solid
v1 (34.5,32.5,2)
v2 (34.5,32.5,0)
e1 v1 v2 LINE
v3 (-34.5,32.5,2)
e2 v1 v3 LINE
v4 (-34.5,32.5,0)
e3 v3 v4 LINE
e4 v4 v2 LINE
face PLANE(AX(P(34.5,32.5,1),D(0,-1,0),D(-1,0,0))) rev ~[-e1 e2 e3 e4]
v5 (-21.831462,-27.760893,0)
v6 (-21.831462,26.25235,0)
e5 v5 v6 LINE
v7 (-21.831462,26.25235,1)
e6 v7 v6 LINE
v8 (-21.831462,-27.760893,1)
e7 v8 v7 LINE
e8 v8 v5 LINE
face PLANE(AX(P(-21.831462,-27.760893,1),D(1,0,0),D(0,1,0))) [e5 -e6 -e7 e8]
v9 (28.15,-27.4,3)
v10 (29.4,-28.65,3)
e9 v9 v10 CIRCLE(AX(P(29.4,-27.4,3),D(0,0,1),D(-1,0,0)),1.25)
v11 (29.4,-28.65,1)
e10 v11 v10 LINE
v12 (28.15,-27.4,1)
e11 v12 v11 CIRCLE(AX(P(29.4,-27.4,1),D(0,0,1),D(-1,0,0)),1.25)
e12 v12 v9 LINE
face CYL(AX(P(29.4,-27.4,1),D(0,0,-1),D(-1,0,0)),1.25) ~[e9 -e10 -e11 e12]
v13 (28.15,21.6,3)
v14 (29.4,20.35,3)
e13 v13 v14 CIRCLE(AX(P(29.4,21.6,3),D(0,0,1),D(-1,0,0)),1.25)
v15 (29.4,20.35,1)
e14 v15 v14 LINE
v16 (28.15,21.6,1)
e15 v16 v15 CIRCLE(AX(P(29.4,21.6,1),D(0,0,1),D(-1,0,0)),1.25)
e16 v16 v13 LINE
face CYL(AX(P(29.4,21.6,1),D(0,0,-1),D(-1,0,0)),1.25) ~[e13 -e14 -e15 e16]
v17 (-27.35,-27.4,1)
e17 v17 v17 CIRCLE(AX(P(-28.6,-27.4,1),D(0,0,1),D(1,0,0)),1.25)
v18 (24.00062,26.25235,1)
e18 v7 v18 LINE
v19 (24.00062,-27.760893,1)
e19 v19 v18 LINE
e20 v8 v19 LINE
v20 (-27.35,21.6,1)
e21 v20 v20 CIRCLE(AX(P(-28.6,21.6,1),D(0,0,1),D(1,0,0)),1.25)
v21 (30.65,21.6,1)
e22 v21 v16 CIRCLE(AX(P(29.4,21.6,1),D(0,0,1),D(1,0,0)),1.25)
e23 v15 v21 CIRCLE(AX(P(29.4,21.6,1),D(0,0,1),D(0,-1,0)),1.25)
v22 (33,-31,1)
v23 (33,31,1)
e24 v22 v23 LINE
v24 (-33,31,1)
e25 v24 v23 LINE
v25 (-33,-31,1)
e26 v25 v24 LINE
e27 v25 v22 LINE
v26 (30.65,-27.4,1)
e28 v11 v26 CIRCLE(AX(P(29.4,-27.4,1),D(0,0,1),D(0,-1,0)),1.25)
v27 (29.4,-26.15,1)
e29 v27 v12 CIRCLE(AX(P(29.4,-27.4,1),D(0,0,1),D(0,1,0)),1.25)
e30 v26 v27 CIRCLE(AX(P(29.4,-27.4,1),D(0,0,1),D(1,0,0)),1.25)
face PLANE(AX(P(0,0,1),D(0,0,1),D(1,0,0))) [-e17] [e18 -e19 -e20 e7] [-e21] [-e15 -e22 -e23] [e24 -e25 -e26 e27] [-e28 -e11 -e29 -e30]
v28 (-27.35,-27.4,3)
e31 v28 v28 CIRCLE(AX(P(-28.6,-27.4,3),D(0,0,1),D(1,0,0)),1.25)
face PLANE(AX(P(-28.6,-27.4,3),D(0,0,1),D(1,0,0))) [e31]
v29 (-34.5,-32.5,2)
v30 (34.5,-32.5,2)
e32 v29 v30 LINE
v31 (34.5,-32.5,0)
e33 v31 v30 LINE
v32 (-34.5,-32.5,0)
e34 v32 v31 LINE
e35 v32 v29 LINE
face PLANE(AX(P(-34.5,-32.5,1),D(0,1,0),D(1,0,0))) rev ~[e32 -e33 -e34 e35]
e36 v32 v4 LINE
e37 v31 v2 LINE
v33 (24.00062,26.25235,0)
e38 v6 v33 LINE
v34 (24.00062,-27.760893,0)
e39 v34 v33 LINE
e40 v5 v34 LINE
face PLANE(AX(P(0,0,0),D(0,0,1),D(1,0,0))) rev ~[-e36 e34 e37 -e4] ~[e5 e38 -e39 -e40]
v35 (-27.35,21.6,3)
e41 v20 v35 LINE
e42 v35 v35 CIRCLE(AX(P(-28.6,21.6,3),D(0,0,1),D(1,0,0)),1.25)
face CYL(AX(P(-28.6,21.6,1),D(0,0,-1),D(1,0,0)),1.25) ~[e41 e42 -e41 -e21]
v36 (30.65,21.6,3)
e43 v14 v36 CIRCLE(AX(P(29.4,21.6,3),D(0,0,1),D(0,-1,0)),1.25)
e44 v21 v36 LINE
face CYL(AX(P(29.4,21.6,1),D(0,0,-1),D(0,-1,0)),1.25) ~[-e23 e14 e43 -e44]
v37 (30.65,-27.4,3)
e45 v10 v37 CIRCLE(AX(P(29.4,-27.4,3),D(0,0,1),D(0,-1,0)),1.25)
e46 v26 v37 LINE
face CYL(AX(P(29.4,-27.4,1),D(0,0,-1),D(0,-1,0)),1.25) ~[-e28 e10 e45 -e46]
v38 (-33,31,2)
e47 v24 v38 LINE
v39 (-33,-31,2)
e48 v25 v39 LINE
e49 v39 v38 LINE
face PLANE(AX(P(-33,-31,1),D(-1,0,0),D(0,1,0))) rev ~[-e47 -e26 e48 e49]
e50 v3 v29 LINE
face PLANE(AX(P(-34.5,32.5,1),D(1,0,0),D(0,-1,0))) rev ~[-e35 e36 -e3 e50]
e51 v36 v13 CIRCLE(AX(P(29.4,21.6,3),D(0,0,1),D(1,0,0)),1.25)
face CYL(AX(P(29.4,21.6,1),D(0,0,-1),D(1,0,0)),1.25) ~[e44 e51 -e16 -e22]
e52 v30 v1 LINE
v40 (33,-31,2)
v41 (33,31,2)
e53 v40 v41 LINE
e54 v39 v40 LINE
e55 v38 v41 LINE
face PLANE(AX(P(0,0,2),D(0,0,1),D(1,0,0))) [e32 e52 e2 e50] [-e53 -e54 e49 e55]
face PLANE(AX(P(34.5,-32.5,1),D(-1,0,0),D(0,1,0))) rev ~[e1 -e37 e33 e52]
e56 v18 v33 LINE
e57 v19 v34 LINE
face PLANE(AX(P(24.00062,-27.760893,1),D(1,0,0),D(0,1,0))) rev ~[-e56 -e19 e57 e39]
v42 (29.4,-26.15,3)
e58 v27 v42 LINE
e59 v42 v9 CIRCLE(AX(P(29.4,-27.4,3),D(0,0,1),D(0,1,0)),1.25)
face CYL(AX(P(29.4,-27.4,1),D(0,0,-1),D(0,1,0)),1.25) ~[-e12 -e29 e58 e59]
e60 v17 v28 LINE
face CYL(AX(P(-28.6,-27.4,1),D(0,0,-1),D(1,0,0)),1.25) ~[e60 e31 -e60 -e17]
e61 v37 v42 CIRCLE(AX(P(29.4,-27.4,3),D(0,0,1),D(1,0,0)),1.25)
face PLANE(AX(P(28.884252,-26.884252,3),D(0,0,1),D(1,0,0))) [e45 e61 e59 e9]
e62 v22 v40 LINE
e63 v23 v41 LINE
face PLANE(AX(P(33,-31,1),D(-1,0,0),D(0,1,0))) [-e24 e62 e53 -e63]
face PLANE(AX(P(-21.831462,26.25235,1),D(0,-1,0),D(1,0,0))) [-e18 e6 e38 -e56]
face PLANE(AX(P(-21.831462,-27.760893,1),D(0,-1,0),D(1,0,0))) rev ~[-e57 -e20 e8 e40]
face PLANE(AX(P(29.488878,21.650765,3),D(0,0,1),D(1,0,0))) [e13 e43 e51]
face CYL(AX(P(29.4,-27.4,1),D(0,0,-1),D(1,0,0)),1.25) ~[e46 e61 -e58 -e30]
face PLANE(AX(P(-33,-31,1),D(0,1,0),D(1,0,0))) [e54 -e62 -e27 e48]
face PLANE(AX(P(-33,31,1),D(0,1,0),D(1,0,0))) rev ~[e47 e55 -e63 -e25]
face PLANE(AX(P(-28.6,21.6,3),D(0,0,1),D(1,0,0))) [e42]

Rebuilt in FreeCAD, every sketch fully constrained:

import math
import FreeCAD as App
import Part
import Sketcher

V = App.Vector


def add_polygon(sketch, points):
    """Adds a closed chain of lines whose ends are joined by coincident constraints."""
    first, n = sketch.GeometryCount, len(points)
    for a, b in zip(points, points[1:] + points[:1]):
        sketch.addGeometry(Part.LineSegment(App.Vector(*a, 0), App.Vector(*b, 0)), False)
    for i in range(n):
        sketch.addConstraint(Sketcher.Constraint("Coincident", first + i, 2, first + (i + 1) % n, 1))

doc = App.newDocument("Part")
params = doc.addObject("Spreadsheet::Sheet", "Params")
for row, (alias, value) in enumerate([
    ("sketch1_width", "69 mm"),
    ("sketch1_height", "65 mm"),
    ("pad1_length", "1 mm"),
    ("sketch2_width", "69 mm"),
    ("sketch2_width2", "66 mm"),
    ("sketch2_height", "65 mm"),
    ("sketch2_height2", "62 mm"),
    ("pad2_length", "1 mm"),
    ("sketch3_diameter", "2.5 mm"),
    ("pad3_length", "2 mm"),
    ("pocket1_length", "25 mm"),
], start=1):
    params.set(f"A{row}", alias)
    params.set(f"B{row}", "=" + value)
    params.setAlias(f"B{row}", alias)

body = doc.addObject("PartDesign::Body", "Body")

sketch1 = body.newObject("Sketcher::SketchObject", "Sketch")
sketch1.AttachmentSupport = (doc.getObject("XY_Plane"), [""])
sketch1.MapMode = "FlatFace"
add_polygon(sketch1, [(-34, 32), (-34, -32), (34, -32), (34, 32)])
sketch1.addConstraint(Sketcher.Constraint("Vertical", 0))
sketch1.addConstraint(Sketcher.Constraint("Horizontal", 1))
sketch1.addConstraint(Sketcher.Constraint("Vertical", 2))
sketch1.addConstraint(Sketcher.Constraint("Horizontal", 3))
sketch1.addConstraint(Sketcher.Constraint("Symmetric", 0, 2, 2, 2, -1, 1))
sketch1.addConstraint(Sketcher.Constraint("DistanceX", 1, 1, 1, 2, 69.0))
sketch1.addConstraint(Sketcher.Constraint("DistanceY", 0, 2, 0, 1, 65.0))
sketch1.setExpression("Constraints[9]", "Params.sketch1_width")
sketch1.setExpression("Constraints[10]", "Params.sketch1_height")
pad1 = body.newObject("PartDesign::Pad", "Pad")
pad1.Profile = sketch1
pad1.setExpression("Length", "Params.pad1_length")

sketch2 = body.newObject("Sketcher::SketchObject", "Sketch001")
sketch2.AttachmentSupport = (doc.getObject("XY_Plane"), [""])
sketch2.MapMode = "FlatFace"
sketch2.AttachmentOffset = App.Placement(V(0, 0, 1), App.Rotation())
add_polygon(sketch2, [(-34, 32), (-34, -32), (34, -32), (34, 32)])
add_polygon(sketch2, [(33, -31), (-33, -31), (-33, 31), (33, 31)])
sketch2.addConstraint(Sketcher.Constraint("Vertical", 0))
sketch2.addConstraint(Sketcher.Constraint("Horizontal", 1))
sketch2.addConstraint(Sketcher.Constraint("Vertical", 2))
sketch2.addConstraint(Sketcher.Constraint("Horizontal", 3))
sketch2.addConstraint(Sketcher.Constraint("Horizontal", 4))
sketch2.addConstraint(Sketcher.Constraint("Vertical", 5))
sketch2.addConstraint(Sketcher.Constraint("Horizontal", 6))
sketch2.addConstraint(Sketcher.Constraint("Vertical", 7))
sketch2.addConstraint(Sketcher.Constraint("Symmetric", 0, 2, 2, 2, -1, 1))
sketch2.addConstraint(Sketcher.Constraint("Symmetric", 4, 2, 6, 2, -1, 1))
sketch2.addConstraint(Sketcher.Constraint("DistanceX", 1, 1, 1, 2, 69.0))
sketch2.addConstraint(Sketcher.Constraint("DistanceX", 4, 2, 4, 1, 66.0))
sketch2.addConstraint(Sketcher.Constraint("DistanceY", 0, 2, 0, 1, 65.0))
sketch2.addConstraint(Sketcher.Constraint("DistanceY", 5, 1, 5, 2, 62.0))
sketch2.setExpression("Constraints[18]", "Params.sketch2_width")
sketch2.setExpression("Constraints[19]", "Params.sketch2_width2")
sketch2.setExpression("Constraints[20]", "Params.sketch2_height")
sketch2.setExpression("Constraints[21]", "Params.sketch2_height2")
pad2 = body.newObject("PartDesign::Pad", "Pad001")
pad2.Profile = sketch2
pad2.setExpression("Length", "Params.pad2_length")

sketch3 = body.newObject("Sketcher::SketchObject", "Sketch002")
sketch3.AttachmentSupport = (doc.getObject("XY_Plane"), [""])
sketch3.MapMode = "FlatFace"
sketch3.AttachmentOffset = App.Placement(V(0, 0, 1), App.Rotation())
sketch3.addGeometry(Part.Circle(V(-28.6, 21.6, 0), V(0, 0, 1), 1.2), False)
sketch3.addGeometry(Part.ArcOfCircle(Part.Circle(V(29.4, 21.6, 0), V(0, 0, 1), 1.2), math.radians(-90), math.radians(0)), False)
sketch3.addGeometry(Part.ArcOfCircle(Part.Circle(V(29.4, 21.6, 0), V(0, 0, 1), 1.2), math.radians(0), math.radians(180)), False)
sketch3.addGeometry(Part.ArcOfCircle(Part.Circle(V(29.4, 21.6, 0), V(0, 0, 1), 1.2), math.radians(180), math.radians(270)), False)
sketch3.addGeometry(Part.ArcOfCircle(Part.Circle(V(29.4, -27.4, 0), V(0, 0, 1), 1.2), math.radians(90), math.radians(180)), False)
sketch3.addGeometry(Part.ArcOfCircle(Part.Circle(V(29.4, -27.4, 0), V(0, 0, 1), 1.2), math.radians(180), math.radians(270)), False)
sketch3.addGeometry(Part.ArcOfCircle(Part.Circle(V(29.4, -27.4, 0), V(0, 0, 1), 1.2), math.radians(-90), math.radians(0)), False)
sketch3.addGeometry(Part.ArcOfCircle(Part.Circle(V(29.4, -27.4, 0), V(0, 0, 1), 1.2), math.radians(0), math.radians(90)), False)
sketch3.addGeometry(Part.Circle(V(-28.6, -27.4, 0), V(0, 0, 1), 1.2), False)
sketch3.addConstraint(Sketcher.Constraint("Tangent", 1, 2, 2, 1))
sketch3.addConstraint(Sketcher.Constraint("Tangent", 2, 2, 3, 1))
sketch3.addConstraint(Sketcher.Constraint("Tangent", 3, 2, 1, 1))
sketch3.addConstraint(Sketcher.Constraint("Tangent", 4, 2, 5, 1))
sketch3.addConstraint(Sketcher.Constraint("Tangent", 5, 2, 6, 1))
sketch3.addConstraint(Sketcher.Constraint("Tangent", 6, 2, 7, 1))
sketch3.addConstraint(Sketcher.Constraint("Tangent", 7, 2, 4, 1))
sketch3.addConstraint(Sketcher.Constraint("Equal", 0, 1))
sketch3.addConstraint(Sketcher.Constraint("Equal", 3, 4))
sketch3.addConstraint(Sketcher.Constraint("Equal", 4, 5))
sketch3.addConstraint(Sketcher.Constraint("Equal", 7, 8))
sketch3.addConstraint(Sketcher.Constraint("Horizontal", 0, 3, 1, 3))
sketch3.addConstraint(Sketcher.Constraint("Horizontal", 7, 3, 8, 3))
sketch3.addConstraint(Sketcher.Constraint("Horizontal", 3, 3, 1, 2))
sketch3.addConstraint(Sketcher.Constraint("Horizontal", 1, 2, 2, 2))
sketch3.addConstraint(Sketcher.Constraint("Horizontal", 8, 3, 4, 2))
sketch3.addConstraint(Sketcher.Constraint("Horizontal", 4, 2, 6, 2))
sketch3.addConstraint(Sketcher.Constraint("Vertical", 3, 3, 4, 3))
sketch3.addConstraint(Sketcher.Constraint("Vertical", 0, 3, 8, 3))
sketch3.addConstraint(Sketcher.Constraint("Vertical", 7, 3, 3, 2))
sketch3.addConstraint(Sketcher.Constraint("Vertical", 3, 2, 5, 2))
sketch3.addConstraint(Sketcher.Constraint("Vertical", 5, 2, 7, 2))
sketch3.addConstraint(Sketcher.Constraint("Diameter", 0, 2.5))
sketch3.addConstraint(Sketcher.Constraint("DistanceX", 0, 3, 1, 3, 58.0))
sketch3.addConstraint(Sketcher.Constraint("DistanceY", 4, 3, 1, 3, 49.0))
sketch3.addConstraint(Sketcher.Constraint("DistanceX", 0, 3, -1, 1, 28.6))
sketch3.addConstraint(Sketcher.Constraint("DistanceY", -1, 1, 0, 3, 21.6))
sketch3.setExpression("Constraints[22]", "Params.sketch3_diameter")
pad3 = body.newObject("PartDesign::Pad", "Pad002")
pad3.Profile = sketch3
pad3.setExpression("Length", "Params.pad3_length")

sketch4 = body.newObject("Sketcher::SketchObject", "Sketch003")
sketch4.AttachmentSupport = (doc.getObject("XY_Plane"), [""])
sketch4.MapMode = "FlatFace"
sketch4.AttachmentOffset = App.Placement(V(0, 0, 1), App.Rotation())
add_polygon(sketch4, [(-22, 26), (-22, -28), (24, -28), (24, 26)])
sketch4.addConstraint(Sketcher.Constraint("Vertical", 0))
sketch4.addConstraint(Sketcher.Constraint("Horizontal", 1))
sketch4.addConstraint(Sketcher.Constraint("Vertical", 2))
sketch4.addConstraint(Sketcher.Constraint("Horizontal", 3))
sketch4.addConstraint(Sketcher.Constraint("DistanceX", 1, 1, 1, 2, 45.832083))
sketch4.addConstraint(Sketcher.Constraint("DistanceY", 0, 2, 0, 1, 54.013243))
sketch4.addConstraint(Sketcher.Constraint("DistanceX", -1, 1, 1, 2, 24.00062))
sketch4.addConstraint(Sketcher.Constraint("DistanceY", -1, 1, 2, 2, 26.25235))
pocket1 = body.newObject("PartDesign::Pocket", "Pocket")
pocket1.Profile = sketch4
pocket1.setExpression("Length", "Params.pocket1_length")

doc.recompute()
